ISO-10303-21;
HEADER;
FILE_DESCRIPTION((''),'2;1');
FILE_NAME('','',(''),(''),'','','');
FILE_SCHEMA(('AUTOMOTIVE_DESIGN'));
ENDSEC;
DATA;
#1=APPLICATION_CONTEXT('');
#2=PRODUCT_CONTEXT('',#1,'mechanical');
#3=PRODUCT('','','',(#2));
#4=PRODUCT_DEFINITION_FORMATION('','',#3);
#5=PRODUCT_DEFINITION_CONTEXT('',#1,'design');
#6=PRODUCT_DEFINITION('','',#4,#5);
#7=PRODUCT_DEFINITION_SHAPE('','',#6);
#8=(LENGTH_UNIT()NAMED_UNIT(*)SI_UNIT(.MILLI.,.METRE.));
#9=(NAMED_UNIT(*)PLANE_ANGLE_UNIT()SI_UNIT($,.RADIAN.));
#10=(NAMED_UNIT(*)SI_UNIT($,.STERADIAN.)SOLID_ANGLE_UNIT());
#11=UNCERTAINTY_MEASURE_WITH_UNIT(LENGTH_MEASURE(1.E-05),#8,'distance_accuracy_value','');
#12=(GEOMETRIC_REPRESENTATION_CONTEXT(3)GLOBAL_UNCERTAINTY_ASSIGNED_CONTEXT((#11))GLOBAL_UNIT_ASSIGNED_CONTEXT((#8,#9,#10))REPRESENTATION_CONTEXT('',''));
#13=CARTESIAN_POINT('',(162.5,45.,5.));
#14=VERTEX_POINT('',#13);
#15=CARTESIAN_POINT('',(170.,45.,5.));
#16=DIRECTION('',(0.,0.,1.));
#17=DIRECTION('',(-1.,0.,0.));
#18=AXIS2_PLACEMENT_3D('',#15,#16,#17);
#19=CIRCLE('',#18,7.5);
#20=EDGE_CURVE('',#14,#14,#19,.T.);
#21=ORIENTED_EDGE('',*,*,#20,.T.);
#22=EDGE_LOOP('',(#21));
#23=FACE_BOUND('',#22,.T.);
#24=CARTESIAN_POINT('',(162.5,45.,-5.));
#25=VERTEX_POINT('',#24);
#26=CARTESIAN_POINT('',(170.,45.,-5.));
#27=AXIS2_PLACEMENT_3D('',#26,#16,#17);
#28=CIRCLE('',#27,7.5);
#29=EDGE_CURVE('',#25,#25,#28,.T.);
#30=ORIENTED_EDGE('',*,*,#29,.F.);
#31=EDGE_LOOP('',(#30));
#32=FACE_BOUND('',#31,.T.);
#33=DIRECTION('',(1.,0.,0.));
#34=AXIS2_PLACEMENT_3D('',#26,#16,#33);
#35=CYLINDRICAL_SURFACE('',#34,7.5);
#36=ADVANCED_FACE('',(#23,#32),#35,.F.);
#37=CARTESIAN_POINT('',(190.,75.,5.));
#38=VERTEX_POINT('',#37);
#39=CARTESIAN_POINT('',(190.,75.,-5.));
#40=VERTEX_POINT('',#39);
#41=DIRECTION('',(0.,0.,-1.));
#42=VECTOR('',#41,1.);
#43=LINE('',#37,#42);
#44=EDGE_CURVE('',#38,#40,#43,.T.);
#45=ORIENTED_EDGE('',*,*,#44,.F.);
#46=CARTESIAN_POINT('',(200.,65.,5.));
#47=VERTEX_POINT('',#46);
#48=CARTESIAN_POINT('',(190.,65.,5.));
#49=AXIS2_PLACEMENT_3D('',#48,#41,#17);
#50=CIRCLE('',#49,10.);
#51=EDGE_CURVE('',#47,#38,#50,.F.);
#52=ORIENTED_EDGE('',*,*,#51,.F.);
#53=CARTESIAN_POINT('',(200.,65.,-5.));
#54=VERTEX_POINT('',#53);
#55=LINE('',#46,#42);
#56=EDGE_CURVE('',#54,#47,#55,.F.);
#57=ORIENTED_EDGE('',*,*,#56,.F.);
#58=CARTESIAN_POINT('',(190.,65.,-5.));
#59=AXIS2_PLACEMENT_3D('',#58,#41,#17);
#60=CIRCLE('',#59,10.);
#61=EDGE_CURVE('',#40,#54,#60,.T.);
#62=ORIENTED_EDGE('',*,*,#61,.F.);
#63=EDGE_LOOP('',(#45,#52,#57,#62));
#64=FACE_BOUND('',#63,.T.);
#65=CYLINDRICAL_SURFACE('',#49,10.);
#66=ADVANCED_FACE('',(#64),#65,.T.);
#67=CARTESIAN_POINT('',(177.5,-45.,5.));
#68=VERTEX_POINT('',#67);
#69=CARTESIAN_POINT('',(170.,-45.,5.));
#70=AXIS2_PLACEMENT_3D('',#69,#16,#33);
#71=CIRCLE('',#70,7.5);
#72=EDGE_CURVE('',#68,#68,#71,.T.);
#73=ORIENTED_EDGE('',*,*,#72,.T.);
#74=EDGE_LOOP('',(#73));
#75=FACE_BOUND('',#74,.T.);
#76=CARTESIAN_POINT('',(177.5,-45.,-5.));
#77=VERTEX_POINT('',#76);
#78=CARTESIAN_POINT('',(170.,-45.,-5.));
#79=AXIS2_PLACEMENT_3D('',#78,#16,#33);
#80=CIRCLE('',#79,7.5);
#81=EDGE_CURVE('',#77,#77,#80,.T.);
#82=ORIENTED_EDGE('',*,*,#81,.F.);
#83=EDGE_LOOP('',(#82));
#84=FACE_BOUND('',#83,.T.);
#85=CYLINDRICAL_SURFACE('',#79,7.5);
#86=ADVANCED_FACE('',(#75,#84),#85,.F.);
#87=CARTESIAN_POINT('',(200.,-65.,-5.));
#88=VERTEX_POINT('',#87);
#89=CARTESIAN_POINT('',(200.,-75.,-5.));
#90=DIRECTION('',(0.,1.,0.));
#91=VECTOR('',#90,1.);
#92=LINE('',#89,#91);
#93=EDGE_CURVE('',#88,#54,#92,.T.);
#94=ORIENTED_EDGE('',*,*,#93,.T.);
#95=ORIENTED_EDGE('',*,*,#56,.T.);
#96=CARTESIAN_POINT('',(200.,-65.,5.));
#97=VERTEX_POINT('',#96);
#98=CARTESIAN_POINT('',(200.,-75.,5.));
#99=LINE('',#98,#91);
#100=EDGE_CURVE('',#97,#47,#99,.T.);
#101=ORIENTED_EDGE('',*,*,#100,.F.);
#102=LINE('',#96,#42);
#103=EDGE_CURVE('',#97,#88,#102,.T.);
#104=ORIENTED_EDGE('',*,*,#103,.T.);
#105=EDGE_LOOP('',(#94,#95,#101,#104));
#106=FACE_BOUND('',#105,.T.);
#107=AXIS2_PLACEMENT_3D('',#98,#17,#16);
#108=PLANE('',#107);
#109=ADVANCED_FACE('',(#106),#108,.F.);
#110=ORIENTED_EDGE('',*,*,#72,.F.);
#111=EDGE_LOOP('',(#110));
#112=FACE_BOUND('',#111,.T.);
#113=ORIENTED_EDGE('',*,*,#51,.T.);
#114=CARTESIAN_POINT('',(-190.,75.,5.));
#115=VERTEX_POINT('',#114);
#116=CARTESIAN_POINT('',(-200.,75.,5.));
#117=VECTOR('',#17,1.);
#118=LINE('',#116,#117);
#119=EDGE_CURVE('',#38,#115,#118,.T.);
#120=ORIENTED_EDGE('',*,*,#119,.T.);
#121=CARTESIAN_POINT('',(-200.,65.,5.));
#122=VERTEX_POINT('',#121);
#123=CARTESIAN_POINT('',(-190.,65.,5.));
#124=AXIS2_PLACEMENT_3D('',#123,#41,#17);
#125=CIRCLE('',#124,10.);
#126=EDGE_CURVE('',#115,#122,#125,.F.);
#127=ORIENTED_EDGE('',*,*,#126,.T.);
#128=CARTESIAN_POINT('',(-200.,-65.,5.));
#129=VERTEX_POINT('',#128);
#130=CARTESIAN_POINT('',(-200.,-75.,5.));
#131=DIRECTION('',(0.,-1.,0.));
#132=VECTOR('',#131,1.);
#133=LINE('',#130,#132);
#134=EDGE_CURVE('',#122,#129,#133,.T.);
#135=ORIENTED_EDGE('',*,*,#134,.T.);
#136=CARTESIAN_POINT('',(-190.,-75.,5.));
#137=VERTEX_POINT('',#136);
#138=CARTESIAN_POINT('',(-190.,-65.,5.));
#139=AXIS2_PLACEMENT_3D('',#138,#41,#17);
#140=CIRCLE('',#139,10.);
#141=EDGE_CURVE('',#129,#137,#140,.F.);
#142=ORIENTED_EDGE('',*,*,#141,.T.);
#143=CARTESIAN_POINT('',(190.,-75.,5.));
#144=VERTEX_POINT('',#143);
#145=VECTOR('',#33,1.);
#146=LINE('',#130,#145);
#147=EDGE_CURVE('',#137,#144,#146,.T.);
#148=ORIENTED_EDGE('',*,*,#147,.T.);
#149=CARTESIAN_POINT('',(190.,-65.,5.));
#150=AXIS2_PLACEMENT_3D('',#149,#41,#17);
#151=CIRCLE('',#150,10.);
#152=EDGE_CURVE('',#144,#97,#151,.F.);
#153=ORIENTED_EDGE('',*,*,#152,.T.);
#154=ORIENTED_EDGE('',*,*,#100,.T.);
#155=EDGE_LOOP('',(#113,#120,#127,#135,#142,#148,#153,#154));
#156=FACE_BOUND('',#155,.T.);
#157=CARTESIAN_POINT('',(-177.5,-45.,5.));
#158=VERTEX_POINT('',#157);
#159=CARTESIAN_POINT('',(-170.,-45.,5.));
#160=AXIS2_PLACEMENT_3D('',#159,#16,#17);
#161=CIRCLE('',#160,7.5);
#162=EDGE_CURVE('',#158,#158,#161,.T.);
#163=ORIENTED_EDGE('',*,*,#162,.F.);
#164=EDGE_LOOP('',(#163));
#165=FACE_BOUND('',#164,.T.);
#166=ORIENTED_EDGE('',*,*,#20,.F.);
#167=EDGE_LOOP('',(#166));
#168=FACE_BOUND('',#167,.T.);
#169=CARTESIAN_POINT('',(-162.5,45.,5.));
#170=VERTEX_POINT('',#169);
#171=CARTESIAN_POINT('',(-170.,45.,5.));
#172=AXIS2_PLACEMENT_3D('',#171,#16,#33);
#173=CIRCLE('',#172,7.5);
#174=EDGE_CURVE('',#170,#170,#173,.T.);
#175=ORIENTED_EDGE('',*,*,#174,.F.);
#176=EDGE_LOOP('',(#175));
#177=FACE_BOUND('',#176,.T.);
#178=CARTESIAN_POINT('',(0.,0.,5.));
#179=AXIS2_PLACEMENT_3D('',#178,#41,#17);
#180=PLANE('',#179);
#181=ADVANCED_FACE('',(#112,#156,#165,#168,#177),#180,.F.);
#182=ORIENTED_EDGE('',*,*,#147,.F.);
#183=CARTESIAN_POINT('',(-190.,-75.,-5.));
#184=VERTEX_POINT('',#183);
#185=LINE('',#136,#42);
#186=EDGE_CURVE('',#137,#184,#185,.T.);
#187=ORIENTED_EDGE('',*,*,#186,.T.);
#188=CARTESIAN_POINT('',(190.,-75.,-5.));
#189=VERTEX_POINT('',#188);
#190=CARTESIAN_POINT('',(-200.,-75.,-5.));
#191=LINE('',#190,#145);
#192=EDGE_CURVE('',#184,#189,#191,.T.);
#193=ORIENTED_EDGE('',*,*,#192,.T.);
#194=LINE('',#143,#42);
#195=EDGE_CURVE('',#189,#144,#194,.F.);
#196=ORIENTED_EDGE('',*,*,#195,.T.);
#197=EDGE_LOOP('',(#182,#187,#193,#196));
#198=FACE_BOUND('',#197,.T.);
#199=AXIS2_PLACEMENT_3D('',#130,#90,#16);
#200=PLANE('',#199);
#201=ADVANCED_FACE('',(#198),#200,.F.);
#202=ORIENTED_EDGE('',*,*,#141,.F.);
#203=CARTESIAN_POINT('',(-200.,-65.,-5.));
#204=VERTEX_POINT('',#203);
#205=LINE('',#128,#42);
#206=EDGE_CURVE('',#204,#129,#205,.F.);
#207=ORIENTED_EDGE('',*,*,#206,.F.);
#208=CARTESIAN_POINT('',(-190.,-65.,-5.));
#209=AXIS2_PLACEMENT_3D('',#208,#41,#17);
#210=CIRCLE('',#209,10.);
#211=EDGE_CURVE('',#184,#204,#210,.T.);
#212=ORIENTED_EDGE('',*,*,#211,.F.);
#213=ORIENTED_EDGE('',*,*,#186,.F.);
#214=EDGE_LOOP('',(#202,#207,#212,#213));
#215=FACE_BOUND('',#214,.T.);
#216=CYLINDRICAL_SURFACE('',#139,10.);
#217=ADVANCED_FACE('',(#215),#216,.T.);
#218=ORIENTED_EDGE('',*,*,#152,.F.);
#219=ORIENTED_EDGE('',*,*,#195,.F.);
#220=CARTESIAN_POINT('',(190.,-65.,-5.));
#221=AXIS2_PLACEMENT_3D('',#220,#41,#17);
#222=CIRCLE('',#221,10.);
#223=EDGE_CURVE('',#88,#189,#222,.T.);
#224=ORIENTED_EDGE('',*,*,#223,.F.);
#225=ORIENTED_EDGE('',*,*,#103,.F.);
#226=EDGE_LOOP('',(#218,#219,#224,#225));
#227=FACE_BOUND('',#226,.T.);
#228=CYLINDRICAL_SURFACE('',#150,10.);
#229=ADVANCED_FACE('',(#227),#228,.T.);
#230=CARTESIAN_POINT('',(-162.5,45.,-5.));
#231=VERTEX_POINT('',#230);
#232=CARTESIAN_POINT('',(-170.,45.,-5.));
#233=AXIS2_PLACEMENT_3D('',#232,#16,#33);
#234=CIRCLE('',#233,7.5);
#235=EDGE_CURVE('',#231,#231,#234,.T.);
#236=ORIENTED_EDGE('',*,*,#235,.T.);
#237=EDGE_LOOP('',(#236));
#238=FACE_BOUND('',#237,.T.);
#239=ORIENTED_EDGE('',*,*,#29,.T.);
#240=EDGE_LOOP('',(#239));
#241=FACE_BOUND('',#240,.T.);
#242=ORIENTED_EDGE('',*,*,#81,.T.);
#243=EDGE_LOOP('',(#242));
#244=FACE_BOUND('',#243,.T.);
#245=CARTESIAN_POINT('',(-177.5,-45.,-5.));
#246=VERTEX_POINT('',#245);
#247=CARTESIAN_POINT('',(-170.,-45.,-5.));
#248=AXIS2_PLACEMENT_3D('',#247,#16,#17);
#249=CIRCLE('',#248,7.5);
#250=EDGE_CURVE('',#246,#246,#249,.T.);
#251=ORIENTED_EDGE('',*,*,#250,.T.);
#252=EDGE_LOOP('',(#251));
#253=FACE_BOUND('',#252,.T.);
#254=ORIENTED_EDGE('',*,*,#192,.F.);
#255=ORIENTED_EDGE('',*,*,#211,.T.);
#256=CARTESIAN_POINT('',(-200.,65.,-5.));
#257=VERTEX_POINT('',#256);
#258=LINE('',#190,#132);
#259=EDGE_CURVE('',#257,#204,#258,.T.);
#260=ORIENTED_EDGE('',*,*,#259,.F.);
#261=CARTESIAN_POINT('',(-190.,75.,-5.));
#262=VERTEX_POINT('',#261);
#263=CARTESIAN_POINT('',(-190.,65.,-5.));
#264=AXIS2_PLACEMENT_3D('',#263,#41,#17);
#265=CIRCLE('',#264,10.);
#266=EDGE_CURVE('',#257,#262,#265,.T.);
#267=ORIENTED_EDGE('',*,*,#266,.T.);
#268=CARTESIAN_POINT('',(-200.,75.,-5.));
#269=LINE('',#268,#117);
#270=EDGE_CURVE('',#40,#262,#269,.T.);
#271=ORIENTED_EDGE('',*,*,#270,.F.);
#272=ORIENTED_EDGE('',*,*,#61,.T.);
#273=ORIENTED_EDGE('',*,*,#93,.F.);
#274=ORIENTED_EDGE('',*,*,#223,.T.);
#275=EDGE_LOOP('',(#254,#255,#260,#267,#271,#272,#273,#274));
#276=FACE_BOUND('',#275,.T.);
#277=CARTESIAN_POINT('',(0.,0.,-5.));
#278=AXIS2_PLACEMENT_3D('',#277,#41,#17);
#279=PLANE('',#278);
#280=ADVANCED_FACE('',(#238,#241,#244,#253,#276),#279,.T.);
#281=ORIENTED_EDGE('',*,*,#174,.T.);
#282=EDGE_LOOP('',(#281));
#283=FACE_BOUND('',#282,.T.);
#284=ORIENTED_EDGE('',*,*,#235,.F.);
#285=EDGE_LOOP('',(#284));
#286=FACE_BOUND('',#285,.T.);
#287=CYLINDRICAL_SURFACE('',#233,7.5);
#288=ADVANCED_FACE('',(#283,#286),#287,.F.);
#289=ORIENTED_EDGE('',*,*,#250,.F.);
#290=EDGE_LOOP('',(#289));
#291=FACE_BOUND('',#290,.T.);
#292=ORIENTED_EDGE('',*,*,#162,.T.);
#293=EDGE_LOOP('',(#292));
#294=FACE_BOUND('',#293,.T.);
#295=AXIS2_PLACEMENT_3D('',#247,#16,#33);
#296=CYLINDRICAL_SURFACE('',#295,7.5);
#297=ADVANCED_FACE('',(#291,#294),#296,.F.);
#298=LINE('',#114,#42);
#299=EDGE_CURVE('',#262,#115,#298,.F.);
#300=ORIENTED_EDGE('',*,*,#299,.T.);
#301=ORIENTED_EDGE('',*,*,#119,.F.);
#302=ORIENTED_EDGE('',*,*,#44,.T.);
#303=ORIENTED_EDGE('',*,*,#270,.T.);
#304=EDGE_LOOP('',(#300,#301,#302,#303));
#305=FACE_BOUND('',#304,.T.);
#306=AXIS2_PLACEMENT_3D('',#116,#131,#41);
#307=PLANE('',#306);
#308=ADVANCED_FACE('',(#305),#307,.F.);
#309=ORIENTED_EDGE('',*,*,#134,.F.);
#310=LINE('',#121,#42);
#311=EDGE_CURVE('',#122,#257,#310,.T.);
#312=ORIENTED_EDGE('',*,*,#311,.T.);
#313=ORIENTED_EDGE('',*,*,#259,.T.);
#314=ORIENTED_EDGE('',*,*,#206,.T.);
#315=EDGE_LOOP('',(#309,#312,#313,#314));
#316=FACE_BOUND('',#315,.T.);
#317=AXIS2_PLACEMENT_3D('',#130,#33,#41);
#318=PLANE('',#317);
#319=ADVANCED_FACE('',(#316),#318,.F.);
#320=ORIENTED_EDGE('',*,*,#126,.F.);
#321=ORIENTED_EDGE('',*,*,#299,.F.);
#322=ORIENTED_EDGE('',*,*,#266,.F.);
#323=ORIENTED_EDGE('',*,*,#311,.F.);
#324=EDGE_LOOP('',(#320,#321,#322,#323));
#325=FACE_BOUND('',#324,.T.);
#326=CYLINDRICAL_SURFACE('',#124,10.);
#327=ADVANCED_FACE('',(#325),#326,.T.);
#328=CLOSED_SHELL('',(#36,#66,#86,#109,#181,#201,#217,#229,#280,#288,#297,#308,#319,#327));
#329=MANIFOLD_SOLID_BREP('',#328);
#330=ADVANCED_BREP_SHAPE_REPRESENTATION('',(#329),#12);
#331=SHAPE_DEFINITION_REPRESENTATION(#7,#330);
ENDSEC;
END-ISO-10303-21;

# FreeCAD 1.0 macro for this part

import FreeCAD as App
import Part
import Sketcher
from FreeCAD import Vector


def edges_at(feature, points):
    """Names of the edges that pass closest to the given points."""
    edges = feature.Shape.Edges
    near = lambda p: min(range(len(edges)), key=lambda i: edges[i].distToShape(Part.Vertex(*p))[0])
    return sorted({f"Edge{near(p) + 1}" for p in points})

doc = App.newDocument("Part")
body = doc.addObject("PartDesign::Body", "Body")

# Sketch on XY plane
sketch1 = body.newObject("Sketcher::SketchObject", "Sketch")
sketch1.AttachmentSupport = (doc.getObject("XY_Plane"), [""])
sketch1.MapMode = "FlatFace"
sketch1.addGeometry([
    Part.LineSegment(Vector(-200, 75, 0), Vector(-200, -75, 0)),
    Part.LineSegment(Vector(-200, -75, 0), Vector(200, -75, 0)),
    Part.LineSegment(Vector(200, -75, 0), Vector(200, 75, 0)),
    Part.LineSegment(Vector(200, 75, 0), Vector(-200, 75, 0)),
], False)
sketch1.addConstraint([
    Sketcher.Constraint("Coincident", 0, 2, 1, 1),
    Sketcher.Constraint("Coincident", 1, 2, 2, 1),
    Sketcher.Constraint("Coincident", 2, 2, 3, 1),
    Sketcher.Constraint("Coincident", 3, 2, 0, 1),
    Sketcher.Constraint("Vertical", 0),
    Sketcher.Constraint("Horizontal", 1),
    Sketcher.Constraint("Vertical", 2),
    Sketcher.Constraint("Horizontal", 3),
    Sketcher.Constraint("Symmetric", 0, 2, 2, 2, -1, 1),
    Sketcher.Constraint("DistanceX", 1, 1, 1, 2, 400.0),
    Sketcher.Constraint("DistanceY", 0, 2, 0, 1, 150.0),
])
pad1 = body.newObject("PartDesign::Pad", "Pad")
pad1.Profile = sketch1
pad1.Length = 10
pad1.Midplane = True

# Sketch on XY plane
sketch2 = body.newObject("Sketcher::SketchObject", "Sketch001")
sketch2.AttachmentSupport = (doc.getObject("XY_Plane"), [""])
sketch2.MapMode = "FlatFace"
sketch2.AttachmentOffset = App.Placement(Vector(0, 0, 5), App.Rotation())
sketch2.addGeometry([
    Part.Circle(Vector(-170, 45, 0), Vector(0, 0, 1), 8),
    Part.Circle(Vector(-170, -45, 0), Vector(0, 0, 1), 8),
    Part.Circle(Vector(170, -45, 0), Vector(0, 0, 1), 8),
    Part.Circle(Vector(170, 45, 0), Vector(0, 0, 1), 8),
], False)
sketch2.addConstraint([
    Sketcher.Constraint("Equal", 0, 1),
    Sketcher.Constraint("Equal", 1, 2),
    Sketcher.Constraint("Equal", 2, 3),
    Sketcher.Constraint("Symmetric", 0, 3, 2, 3, -1, 1),
    Sketcher.Constraint("Symmetric", 1, 3, 3, 3, -1, 1),
    Sketcher.Constraint("Symmetric", 1, 3, 2, 3, -2),
    Sketcher.Constraint("Diameter", 0, 15.0),
    Sketcher.Constraint("DistanceX", 0, 3, -1, 1, 170.0),
    Sketcher.Constraint("DistanceY", -1, 1, 0, 3, 45.0),
])
pocket1 = body.newObject("PartDesign::Pocket", "Pocket")
pocket1.Profile = sketch2
pocket1.Type = "ThroughAll"
doc.recompute()

fillet = body.newObject("PartDesign::Fillet", "Fillet")
fillet.Base = (pocket1, edges_at(pocket1, [
    (200, -75, 0),
    (-200, -75, 0),
    (-200, 75, 0),
    (200, 75, 0),
]))
fillet.Radius = 10

doc.recompute()
